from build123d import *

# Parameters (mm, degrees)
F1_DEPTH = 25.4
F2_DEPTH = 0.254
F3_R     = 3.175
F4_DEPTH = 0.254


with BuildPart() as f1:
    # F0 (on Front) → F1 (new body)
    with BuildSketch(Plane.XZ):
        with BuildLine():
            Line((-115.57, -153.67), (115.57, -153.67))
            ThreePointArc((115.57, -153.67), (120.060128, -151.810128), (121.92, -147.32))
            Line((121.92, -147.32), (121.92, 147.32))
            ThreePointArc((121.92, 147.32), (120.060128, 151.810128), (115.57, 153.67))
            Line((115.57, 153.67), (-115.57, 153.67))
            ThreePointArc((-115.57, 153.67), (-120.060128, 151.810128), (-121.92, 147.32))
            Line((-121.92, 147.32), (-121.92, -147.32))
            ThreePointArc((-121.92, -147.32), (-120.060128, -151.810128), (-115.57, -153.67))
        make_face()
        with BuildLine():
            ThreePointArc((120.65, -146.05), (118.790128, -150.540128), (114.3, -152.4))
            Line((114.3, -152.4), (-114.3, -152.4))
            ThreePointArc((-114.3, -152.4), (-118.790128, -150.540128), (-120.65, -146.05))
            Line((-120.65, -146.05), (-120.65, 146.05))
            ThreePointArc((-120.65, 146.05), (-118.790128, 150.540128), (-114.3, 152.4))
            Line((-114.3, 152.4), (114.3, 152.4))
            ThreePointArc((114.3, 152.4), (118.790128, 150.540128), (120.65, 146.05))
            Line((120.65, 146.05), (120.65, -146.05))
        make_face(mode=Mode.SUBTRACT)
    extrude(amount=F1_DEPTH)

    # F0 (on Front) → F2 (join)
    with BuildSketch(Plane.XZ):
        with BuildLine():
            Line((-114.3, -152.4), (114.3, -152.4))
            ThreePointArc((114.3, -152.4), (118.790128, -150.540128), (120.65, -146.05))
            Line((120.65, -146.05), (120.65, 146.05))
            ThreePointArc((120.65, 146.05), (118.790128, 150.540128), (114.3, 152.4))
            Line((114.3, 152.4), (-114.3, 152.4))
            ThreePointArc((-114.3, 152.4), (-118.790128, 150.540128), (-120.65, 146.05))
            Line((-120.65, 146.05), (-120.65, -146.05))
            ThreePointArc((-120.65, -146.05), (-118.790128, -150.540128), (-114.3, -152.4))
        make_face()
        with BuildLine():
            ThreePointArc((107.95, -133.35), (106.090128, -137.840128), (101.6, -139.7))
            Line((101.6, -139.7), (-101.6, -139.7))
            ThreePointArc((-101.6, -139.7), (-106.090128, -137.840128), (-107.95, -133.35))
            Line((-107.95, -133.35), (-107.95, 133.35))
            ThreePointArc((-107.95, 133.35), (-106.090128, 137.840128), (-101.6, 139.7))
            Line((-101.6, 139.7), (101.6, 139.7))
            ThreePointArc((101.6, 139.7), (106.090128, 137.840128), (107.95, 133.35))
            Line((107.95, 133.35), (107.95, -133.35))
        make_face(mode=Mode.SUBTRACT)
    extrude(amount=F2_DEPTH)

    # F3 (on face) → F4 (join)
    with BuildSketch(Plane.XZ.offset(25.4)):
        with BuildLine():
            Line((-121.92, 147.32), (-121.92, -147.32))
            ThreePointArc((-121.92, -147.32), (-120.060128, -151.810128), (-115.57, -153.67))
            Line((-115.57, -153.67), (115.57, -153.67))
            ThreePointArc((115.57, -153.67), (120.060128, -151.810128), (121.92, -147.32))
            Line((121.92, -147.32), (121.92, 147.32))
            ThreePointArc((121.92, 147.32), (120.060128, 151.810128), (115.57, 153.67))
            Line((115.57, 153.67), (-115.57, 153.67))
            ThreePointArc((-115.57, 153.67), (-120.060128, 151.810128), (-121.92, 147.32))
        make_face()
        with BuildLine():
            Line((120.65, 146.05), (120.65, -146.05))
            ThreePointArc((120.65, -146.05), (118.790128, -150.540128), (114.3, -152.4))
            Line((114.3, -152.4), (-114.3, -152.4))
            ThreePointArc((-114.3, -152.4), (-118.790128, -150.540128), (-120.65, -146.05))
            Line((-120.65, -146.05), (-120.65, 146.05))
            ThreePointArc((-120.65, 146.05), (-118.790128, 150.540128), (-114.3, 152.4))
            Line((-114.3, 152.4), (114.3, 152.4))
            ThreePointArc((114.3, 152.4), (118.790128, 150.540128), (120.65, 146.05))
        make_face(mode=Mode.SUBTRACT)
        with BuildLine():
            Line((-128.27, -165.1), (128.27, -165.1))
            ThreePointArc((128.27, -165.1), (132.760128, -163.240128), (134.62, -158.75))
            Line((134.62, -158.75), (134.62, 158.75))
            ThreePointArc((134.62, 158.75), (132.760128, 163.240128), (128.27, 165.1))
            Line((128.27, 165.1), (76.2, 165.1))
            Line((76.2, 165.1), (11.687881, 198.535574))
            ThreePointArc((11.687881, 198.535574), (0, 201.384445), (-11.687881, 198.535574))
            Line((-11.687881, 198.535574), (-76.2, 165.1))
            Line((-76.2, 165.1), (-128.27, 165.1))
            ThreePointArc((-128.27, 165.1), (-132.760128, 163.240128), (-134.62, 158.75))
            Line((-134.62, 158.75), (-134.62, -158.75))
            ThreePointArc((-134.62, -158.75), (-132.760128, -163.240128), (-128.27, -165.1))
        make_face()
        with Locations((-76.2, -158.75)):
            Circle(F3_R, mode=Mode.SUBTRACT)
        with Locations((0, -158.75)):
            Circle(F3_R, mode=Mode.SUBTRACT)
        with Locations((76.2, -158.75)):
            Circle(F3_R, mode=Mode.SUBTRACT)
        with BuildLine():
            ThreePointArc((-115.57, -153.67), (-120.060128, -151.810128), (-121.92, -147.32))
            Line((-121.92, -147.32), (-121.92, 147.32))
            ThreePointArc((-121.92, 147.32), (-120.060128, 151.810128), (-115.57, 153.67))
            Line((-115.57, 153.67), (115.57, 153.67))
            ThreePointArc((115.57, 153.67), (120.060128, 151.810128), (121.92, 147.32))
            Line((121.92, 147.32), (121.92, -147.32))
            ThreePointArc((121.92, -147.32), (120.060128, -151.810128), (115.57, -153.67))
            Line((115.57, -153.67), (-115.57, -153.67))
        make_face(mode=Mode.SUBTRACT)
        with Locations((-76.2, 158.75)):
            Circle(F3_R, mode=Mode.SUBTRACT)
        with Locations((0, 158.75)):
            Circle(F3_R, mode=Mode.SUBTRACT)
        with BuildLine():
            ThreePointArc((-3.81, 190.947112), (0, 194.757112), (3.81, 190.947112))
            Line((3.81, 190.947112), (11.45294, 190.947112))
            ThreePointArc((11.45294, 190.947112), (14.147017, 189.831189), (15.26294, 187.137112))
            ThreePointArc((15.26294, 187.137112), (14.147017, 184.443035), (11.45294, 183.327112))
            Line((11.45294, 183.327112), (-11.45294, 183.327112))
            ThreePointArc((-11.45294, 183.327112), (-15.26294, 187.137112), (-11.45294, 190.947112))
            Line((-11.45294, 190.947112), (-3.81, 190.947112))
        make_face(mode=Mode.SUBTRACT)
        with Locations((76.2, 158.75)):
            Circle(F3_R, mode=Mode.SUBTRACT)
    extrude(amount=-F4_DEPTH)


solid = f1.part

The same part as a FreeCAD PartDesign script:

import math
import FreeCAD as App
import Part
import Sketcher

V = App.Vector
Q = App.Units.Quantity

doc = App.newDocument("Part")
body = doc.addObject("PartDesign::Body", "Body")

# Sketch on XZ plane
sketch1 = body.newObject("Sketcher::SketchObject", "Sketch")
sketch1.AttachmentSupport = (doc.getObject("XZ_Plane"), [""])
sketch1.MapMode = "FlatFace"
sketch1.addGeometry([
    Part.LineSegment(V(-115.57, -153.67, 0), V(115.57, -153.67, 0)),  # 0
    Part.ArcOfCircle(Part.Circle(V(115.57, -147.32, 0), V(0, 0, 1), 6.35), math.radians(-89.999998), math.radians(-0.000002)),  # 1
    Part.LineSegment(V(121.92, -147.32, 0), V(121.92, 147.32, 0)),  # 2
    Part.ArcOfCircle(Part.Circle(V(115.57, 147.32, 0), V(0, 0, 1), 6.35), math.radians(0.000002), math.radians(89.999998)),  # 3
    Part.LineSegment(V(115.57, 153.67, 0), V(-115.57, 153.67, 0)),  # 4
    Part.ArcOfCircle(Part.Circle(V(-115.57, 147.32, 0), V(0, 0, 1), 6.35), math.radians(90.000002), math.radians(179.999998)),  # 5
    Part.LineSegment(V(-121.92, 147.32, 0), V(-121.92, -147.32, 0)),  # 6
    Part.ArcOfCircle(Part.Circle(V(-115.57, -147.32, 0), V(0, 0, 1), 6.35), math.radians(-179.999998), math.radians(-90.000002)),  # 7
    Part.LineSegment(V(120.65, 146.05, 0), V(120.65, -146.05, 0)),  # 8
    Part.ArcOfCircle(Part.Circle(V(114.3, -146.05, 0), V(0, 0, 1), 6.35), math.radians(-89.999998), math.radians(-0.000002)),  # 9
    Part.LineSegment(V(114.3, -152.4, 0), V(-114.3, -152.4, 0)),  # 10
    Part.ArcOfCircle(Part.Circle(V(-114.3, -146.05, 0), V(0, 0, 1), 6.35), math.radians(-179.999998), math.radians(-90.000002)),  # 11
    Part.LineSegment(V(-120.65, -146.05, 0), V(-120.65, 146.05, 0)),  # 12
    Part.ArcOfCircle(Part.Circle(V(-114.3, 146.05, 0), V(0, 0, 1), 6.35), math.radians(90.000002), math.radians(179.999998)),  # 13
    Part.LineSegment(V(-114.3, 152.4, 0), V(114.3, 152.4, 0)),  # 14
    Part.ArcOfCircle(Part.Circle(V(114.3, 146.05, 0), V(0, 0, 1), 6.35), math.radians(0.000002), math.radians(89.999998)),  # 15
], False)
sketch1.addConstraint([
    Sketcher.Constraint("Tangent", 0, 2, 1, 1),
    Sketcher.Constraint("Tangent", 1, 2, 2, 1),
    Sketcher.Constraint("Tangent", 2, 2, 3, 1),
    Sketcher.Constraint("Tangent", 3, 2, 4, 1),
    Sketcher.Constraint("Tangent", 4, 2, 5, 1),
    Sketcher.Constraint("Tangent", 5, 2, 6, 1),
    Sketcher.Constraint("Tangent", 6, 2, 7, 1),
    Sketcher.Constraint("Tangent", 7, 2, 0, 1),
    Sketcher.Constraint("Tangent", 8, 2, 9, 2),
    Sketcher.Constraint("Tangent", 9, 1, 10, 1),
    Sketcher.Constraint("Tangent", 10, 2, 11, 2),
    Sketcher.Constraint("Tangent", 11, 1, 12, 1),
    Sketcher.Constraint("Tangent", 12, 2, 13, 2),
    Sketcher.Constraint("Tangent", 13, 1, 14, 1),
    Sketcher.Constraint("Tangent", 14, 2, 15, 2),
    Sketcher.Constraint("Tangent", 15, 1, 8, 1),
    Sketcher.Constraint("Horizontal", 0),
    Sketcher.Constraint("Vertical", 2),
    Sketcher.Constraint("Horizontal", 4),
    Sketcher.Constraint("Vertical", 6),
    Sketcher.Constraint("Vertical", 8),
    Sketcher.Constraint("Horizontal", 10),
    Sketcher.Constraint("Vertical", 12),
    Sketcher.Constraint("Horizontal", 14),
    Sketcher.Constraint("Equal", 1, 3),
    Sketcher.Constraint("Equal", 3, 5),
    Sketcher.Constraint("Equal", 5, 7),
    Sketcher.Constraint("Equal", 7, 9),
    Sketcher.Constraint("Equal", 9, 11),
    Sketcher.Constraint("Equal", 11, 13),
    Sketcher.Constraint("Equal", 13, 15),
    Sketcher.Constraint("Symmetric", 1, 3, 5, 3, -1, 1),
    Sketcher.Constraint("Symmetric", 9, 3, 13, 3, -1, 1),
    Sketcher.Constraint("DistanceX", 10, 2, 10, 1, Q("9 in")),
    Sketcher.Constraint("Radius", 1, Q("0.25 in")),
    Sketcher.Constraint("DistanceX", 0, 1, 0, 2, Q("9.1 in")),
    Sketcher.Constraint("DistanceY", 2, 1, 2, 2, Q("11.6 in")),
    Sketcher.Constraint("DistanceY", 8, 2, 8, 1, Q("11.5 in")),
])
pad1 = body.newObject("PartDesign::Pad", "Pad")
pad1.Profile = sketch1
pad1.Length = Q("1 in")

# Sketch on XZ plane
sketch2 = body.newObject("Sketcher::SketchObject", "Sketch001")
sketch2.AttachmentSupport = (doc.getObject("XZ_Plane"), [""])
sketch2.MapMode = "FlatFace"
sketch2.addGeometry([
    Part.LineSegment(V(-114.3, -152.4, 0), V(114.3, -152.4, 0)),  # 0
    Part.ArcOfCircle(Part.Circle(V(114.3, -146.05, 0), V(0, 0, 1), 6.35), math.radians(-89.999998), math.radians(-0.000002)),  # 1
    Part.LineSegment(V(120.65, -146.05, 0), V(120.65, 146.05, 0)),  # 2
    Part.ArcOfCircle(Part.Circle(V(114.3, 146.05, 0), V(0, 0, 1), 6.35), math.radians(0.000002), math.radians(89.999998)),  # 3
    Part.LineSegment(V(114.3, 152.4, 0), V(-114.3, 152.4, 0)),  # 4
    Part.ArcOfCircle(Part.Circle(V(-114.3, 146.05, 0), V(0, 0, 1), 6.35), math.radians(90.000002), math.radians(179.999998)),  # 5
    Part.LineSegment(V(-120.65, 146.05, 0), V(-120.65, -146.05, 0)),  # 6
    Part.ArcOfCircle(Part.Circle(V(-114.3, -146.05, 0), V(0, 0, 1), 6.35), math.radians(-179.999998), math.radians(-90.000002)),  # 7
    Part.LineSegment(V(107.95, 133.35, 0), V(107.95, -133.35, 0)),  # 8
    Part.ArcOfCircle(Part.Circle(V(101.6, -133.35, 0), V(0, 0, 1), 6.35), math.radians(-89.999998), math.radians(-0.000002)),  # 9
    Part.LineSegment(V(101.6, -139.7, 0), V(-101.6, -139.7, 0)),  # 10
    Part.ArcOfCircle(Part.Circle(V(-101.6, -133.35, 0), V(0, 0, 1), 6.35), math.radians(-179.999998), math.radians(-90.000002)),  # 11
    Part.LineSegment(V(-107.95, -133.35, 0), V(-107.95, 133.35, 0)),  # 12
    Part.ArcOfCircle(Part.Circle(V(-101.6, 133.35, 0), V(0, 0, 1), 6.35), math.radians(90.000002), math.radians(179.999998)),  # 13
    Part.LineSegment(V(-101.6, 139.7, 0), V(101.6, 139.7, 0)),  # 14
    Part.ArcOfCircle(Part.Circle(V(101.6, 133.35, 0), V(0, 0, 1), 6.35), math.radians(0.000002), math.radians(89.999998)),  # 15
], False)
sketch2.addConstraint([
    Sketcher.Constraint("Tangent", 0, 2, 1, 1),
    Sketcher.Constraint("Tangent", 1, 2, 2, 1),
    Sketcher.Constraint("Tangent", 2, 2, 3, 1),
    Sketcher.Constraint("Tangent", 3, 2, 4, 1),
    Sketcher.Constraint("Tangent", 4, 2, 5, 1),
    Sketcher.Constraint("Tangent", 5, 2, 6, 1),
    Sketcher.Constraint("Tangent", 6, 2, 7, 1),
    Sketcher.Constraint("Tangent", 7, 2, 0, 1),
    Sketcher.Constraint("Tangent", 8, 2, 9, 2),
    Sketcher.Constraint("Tangent", 9, 1, 10, 1),
    Sketcher.Constraint("Tangent", 10, 2, 11, 2),
    Sketcher.Constraint("Tangent", 11, 1, 12, 1),
    Sketcher.Constraint("Tangent", 12, 2, 13, 2),
    Sketcher.Constraint("Tangent", 13, 1, 14, 1),
    Sketcher.Constraint("Tangent", 14, 2, 15, 2),
    Sketcher.Constraint("Tangent", 15, 1, 8, 1),
    Sketcher.Constraint("Horizontal", 0),
    Sketcher.Constraint("Vertical", 2),
    Sketcher.Constraint("Horizontal", 4),
    Sketcher.Constraint("Vertical", 6),
    Sketcher.Constraint("Vertical", 8),
    Sketcher.Constraint("Horizontal", 10),
    Sketcher.Constraint("Vertical", 12),
    Sketcher.Constraint("Horizontal", 14),
    Sketcher.Constraint("Equal", 1, 3),
    Sketcher.Constraint("Equal", 3, 5),
    Sketcher.Constraint("Equal", 5, 7),
    Sketcher.Constraint("Equal", 7, 9),
    Sketcher.Constraint("Equal", 9, 11),
    Sketcher.Constraint("Equal", 11, 13),
    Sketcher.Constraint("Equal", 13, 15),
    Sketcher.Constraint("Symmetric", 1, 3, 5, 3, -1, 1),
    Sketcher.Constraint("Symmetric", 9, 3, 13, 3, -1, 1),
    Sketcher.Constraint("DistanceX", 0, 1, 0, 2, Q("9 in")),
    Sketcher.Constraint("DistanceX", 10, 2, 10, 1, Q("8 in")),
    Sketcher.Constraint("Radius", 1, Q("0.25 in")),
    Sketcher.Constraint("DistanceY", 2, 1, 2, 2, Q("11.5 in")),
    Sketcher.Constraint("DistanceY", 8, 2, 8, 1, Q("10.5 in")),
])
pad2 = body.newObject("PartDesign::Pad", "Pad001")
pad2.Profile = sketch2
pad2.Length = Q("0.01 in")

# Sketch on XZ plane
sketch3 = body.newObject("Sketcher::SketchObject", "Sketch002")
sketch3.AttachmentSupport = (doc.getObject("XZ_Plane"), [""])
sketch3.MapMode = "FlatFace"
sketch3.AttachmentOffset = App.Placement(V(0, 0, 1 * 25.4), App.Rotation())
sketch3.addGeometry([
    Part.LineSegment(V(-128.27, -165.1, 0), V(128.27, -165.1, 0)),  # 0
    Part.ArcOfCircle(Part.Circle(V(128.27, -158.75, 0), V(0, 0, 1), 6.35), math.radians(-89.999998), math.radians(-0.000002)),  # 1
    Part.LineSegment(V(134.62, -158.75, 0), V(134.62, 158.75, 0)),  # 2
    Part.ArcOfCircle(Part.Circle(V(128.27, 158.75, 0), V(0, 0, 1), 6.35), math.radians(0.000002), math.radians(89.999998)),  # 3
    Part.LineSegment(V(128.27, 165.1, 0), V(76.2, 165.1, 0)),  # 4
    Part.LineSegment(V(76.2, 165.1, 0), V(11.687881, 198.535574, 0)),  # 5
    Part.ArcOfCircle(Part.Circle(V(0, 175.984448, 0), V(0, 0, 1), 25.399997), math.radians(62.603029), math.radians(117.396971)),  # 6
    Part.LineSegment(V(-11.687881, 198.535574, 0), V(-76.2, 165.1, 0)),  # 7
    Part.LineSegment(V(-76.2, 165.1, 0), V(-128.27, 165.1, 0)),  # 8
    Part.ArcOfCircle(Part.Circle(V(-128.27, 158.75, 0), V(0, 0, 1), 6.35), math.radians(90.000002), math.radians(179.999998)),  # 9
    Part.LineSegment(V(-134.62, 158.75, 0), V(-134.62, -158.75, 0)),  # 10
    Part.ArcOfCircle(Part.Circle(V(-128.27, -158.75, 0), V(0, 0, 1), 6.35), math.radians(-179.999998), math.radians(-90.000002)),  # 11
    Part.Circle(V(-76.2, -158.75, 0), V(0, 0, 1), 3.175),  # 12
    Part.Circle(V(0, -158.75, 0), V(0, 0, 1), 3.175),  # 13
    Part.Circle(V(76.2, -158.75, 0), V(0, 0, 1), 3.175),  # 14
    Part.LineSegment(V(115.57, -153.67, 0), V(-115.57, -153.67, 0)),  # 15
    Part.ArcOfCircle(Part.Circle(V(-115.57, -147.32, 0), V(0, 0, 1), 6.35), math.radians(-179.999998), math.radians(-90.000002)),  # 16
    Part.LineSegment(V(-121.92, -147.32, 0), V(-121.92, 147.32, 0)),  # 17
    Part.ArcOfCircle(Part.Circle(V(-115.57, 147.32, 0), V(0, 0, 1), 6.35), math.radians(90.000002), math.radians(179.999998)),  # 18
    Part.LineSegment(V(-115.57, 153.67, 0), V(115.57, 153.67, 0)),  # 19
    Part.ArcOfCircle(Part.Circle(V(115.57, 147.32, 0), V(0, 0, 1), 6.35), math.radians(0.000002), math.radians(89.999998)),  # 20
    Part.LineSegment(V(121.92, 147.32, 0), V(121.92, -147.32, 0)),  # 21
    Part.ArcOfCircle(Part.Circle(V(115.57, -147.32, 0), V(0, 0, 1), 6.35), math.radians(-89.999998), math.radians(-0.000002)),  # 22
    Part.Circle(V(-76.2, 158.75, 0), V(0, 0, 1), 3.175),  # 23
    Part.Circle(V(0, 158.75, 0), V(0, 0, 1), 3.175),  # 24
    Part.LineSegment(V(-11.45294, 190.947112, 0), V(-3.81, 190.947112, 0)),  # 25
    Part.ArcOfCircle(Part.Circle(V(0, 190.947112, 0), V(0, 0, 1), 3.81), math.radians(0), math.radians(180)),  # 26
    Part.LineSegment(V(3.81, 190.947112, 0), V(11.45294, 190.947112, 0)),  # 27
    Part.ArcOfCircle(Part.Circle(V(11.452941, 187.137113, 0), V(0, 0, 1), 3.809999), math.radians(-0.000008), math.radians(90.000008)),  # 28
    Part.ArcOfCircle(Part.Circle(V(11.452941, 187.137111, 0), V(0, 0, 1), 3.809999), math.radians(-90.000008), math.radians(0.000008)),  # 29
    Part.LineSegment(V(11.45294, 183.327112, 0), V(-11.45294, 183.327112, 0)),  # 30
    Part.ArcOfCircle(Part.Circle(V(-11.45294, 187.137112, 0), V(0, 0, 1), 3.81), math.radians(90), math.radians(270)),  # 31
    Part.Circle(V(76.2, 158.75, 0), V(0, 0, 1), 3.175),  # 32
], False)
sketch3.addConstraint([
    Sketcher.Constraint("Tangent", 0, 2, 1, 1),
    Sketcher.Constraint("Tangent", 1, 2, 2, 1),
    Sketcher.Constraint("Tangent", 2, 2, 3, 1),
    Sketcher.Constraint("Tangent", 3, 2, 4, 1),
    Sketcher.Constraint("Coincident", 4, 2, 5, 1),
    Sketcher.Constraint("Tangent", 5, 2, 6, 1),
    Sketcher.Constraint("Tangent", 6, 2, 7, 1),
    Sketcher.Constraint("Coincident", 7, 2, 8, 1),
    Sketcher.Constraint("Tangent", 8, 2, 9, 1),
    Sketcher.Constraint("Tangent", 9, 2, 10, 1),
    Sketcher.Constraint("Tangent", 10, 2, 11, 1),
    Sketcher.Constraint("Tangent", 11, 2, 0, 1),
    Sketcher.Constraint("Tangent", 15, 2, 16, 2),
    Sketcher.Constraint("Tangent", 16, 1, 17, 1),
    Sketcher.Constraint("Tangent", 17, 2, 18, 2),
    Sketcher.Constraint("Tangent", 18, 1, 19, 1),
    Sketcher.Constraint("Tangent", 19, 2, 20, 2),
    Sketcher.Constraint("Tangent", 20, 1, 21, 1),
    Sketcher.Constraint("Tangent", 21, 2, 22, 2),
    Sketcher.Constraint("Tangent", 22, 1, 15, 1),
    Sketcher.Constraint("Coincident", 25, 2, 26, 2),
    Sketcher.Constraint("Coincident", 26, 1, 27, 1),
    Sketcher.Constraint("Tangent", 27, 2, 28, 2),
    Sketcher.Constraint("Tangent", 28, 1, 29, 2),
    Sketcher.Constraint("Tangent", 29, 1, 30, 1),
    Sketcher.Constraint("Tangent", 30, 2, 31, 2),
    Sketcher.Constraint("Tangent", 31, 1, 25, 1),
    Sketcher.Constraint("Horizontal", 0),
    Sketcher.Constraint("Vertical", 2),
    Sketcher.Constraint("Horizontal", 4),
    Sketcher.Constraint("Horizontal", 8),
    Sketcher.Constraint("Vertical", 10),
    Sketcher.Constraint("Horizontal", 15),
    Sketcher.Constraint("Vertical", 17),
    Sketcher.Constraint("Horizontal", 19),
    Sketcher.Constraint("Vertical", 21),
    Sketcher.Constraint("Horizontal", 25),
    Sketcher.Constraint("Horizontal", 27),
    Sketcher.Constraint("Horizontal", 30),
    Sketcher.Constraint("Equal", 1, 3),
    Sketcher.Constraint("Equal", 3, 9),
    Sketcher.Constraint("Equal", 9, 11),
    Sketcher.Constraint("Equal", 12, 13),
    Sketcher.Constraint("Equal", 13, 14),
    Sketcher.Constraint("Equal", 11, 16),
    Sketcher.Constraint("Equal", 16, 18),
    Sketcher.Constraint("Equal", 18, 20),
    Sketcher.Constraint("Equal", 20, 22),
    Sketcher.Constraint("Equal", 14, 23),
    Sketcher.Constraint("Equal", 23, 24),
    Sketcher.Constraint("Equal", 26, 28),
    Sketcher.Constraint("Equal", 28, 29),
    Sketcher.Constraint("Equal", 29, 31),
    Sketcher.Constraint("Equal", 24, 32),
    Sketcher.Constraint("Symmetric", 1, 3, 9, 3, -1, 1),
    Sketcher.Constraint("Symmetric", 16, 3, 20, 3, -1, 1),
    Sketcher.Constraint("Symmetric", 14, 3, 23, 3, -1, 1),
    Sketcher.Constraint("Symmetric", 13, 3, 24, 3, -1, 1),
    Sketcher.Constraint("Symmetric", 12, 3, 32, 3, -1, 1),
    Sketcher.Constraint("Symmetric", 12, 3, 14, 3, -2),
    Sketcher.Constraint("Symmetric", 5, 2, 6, 2, -2),
    Sketcher.Constraint("PointOnObject", 13, 3, -2),
    Sketcher.Constraint("PointOnObject", 26, 3, -2),
    Sketcher.Constraint("Horizontal", 3, 3, 9, 3),
    Sketcher.Constraint("Horizontal", 11, 3, 12, 3),
    Sketcher.Constraint("Horizontal", 12, 3, 13, 3),
    Sketcher.Constraint("Horizontal", 26, 3, 25, 2),
    Sketcher.Constraint("Horizontal", 31, 3, 28, 1),
    Sketcher.Constraint("Vertical", 32, 3, 4, 2),
    Sketcher.Constraint("Equal", 25, 27),
    Sketcher.Constraint("Radius", 6, Q("0.9999999 in")),
    Sketcher.Constraint("Diameter", 12, Q("0.25 in")),
    Sketcher.Constraint("Radius", 1, Q("0.25 in")),
    Sketcher.Constraint("Radius", 26, Q("0.15 in")),
    Sketcher.Constraint("DistanceX", 0, 1, 0, 2, Q("10.1 in")),
    Sketcher.Constraint("DistanceX", 15, 2, 15, 1, Q("9.1 in")),
    Sketcher.Constraint("DistanceY", 2, 1, 2, 2, Q("12.5 in")),
    Sketcher.Constraint("DistanceY", 17, 1, 17, 2, Q("11.6 in")),
    Sketcher.Constraint("DistanceX", 12, 3, -1, 1, Q("3 in")),
    Sketcher.Constraint("DistanceX", 25, 1, 25, 2, 7.64294),
    Sketcher.Constraint("DistanceY", -1, 1, 6, 3, 175.984448),
    Sketcher.Constraint("DistanceY", -1, 1, 26, 3, 190.947112),
])
pad3 = body.newObject("PartDesign::Pad", "Pad002")
pad3.Profile = sketch3
pad3.Length = Q("0.01 in")
pad3.Reversed = True

doc.recompute()
